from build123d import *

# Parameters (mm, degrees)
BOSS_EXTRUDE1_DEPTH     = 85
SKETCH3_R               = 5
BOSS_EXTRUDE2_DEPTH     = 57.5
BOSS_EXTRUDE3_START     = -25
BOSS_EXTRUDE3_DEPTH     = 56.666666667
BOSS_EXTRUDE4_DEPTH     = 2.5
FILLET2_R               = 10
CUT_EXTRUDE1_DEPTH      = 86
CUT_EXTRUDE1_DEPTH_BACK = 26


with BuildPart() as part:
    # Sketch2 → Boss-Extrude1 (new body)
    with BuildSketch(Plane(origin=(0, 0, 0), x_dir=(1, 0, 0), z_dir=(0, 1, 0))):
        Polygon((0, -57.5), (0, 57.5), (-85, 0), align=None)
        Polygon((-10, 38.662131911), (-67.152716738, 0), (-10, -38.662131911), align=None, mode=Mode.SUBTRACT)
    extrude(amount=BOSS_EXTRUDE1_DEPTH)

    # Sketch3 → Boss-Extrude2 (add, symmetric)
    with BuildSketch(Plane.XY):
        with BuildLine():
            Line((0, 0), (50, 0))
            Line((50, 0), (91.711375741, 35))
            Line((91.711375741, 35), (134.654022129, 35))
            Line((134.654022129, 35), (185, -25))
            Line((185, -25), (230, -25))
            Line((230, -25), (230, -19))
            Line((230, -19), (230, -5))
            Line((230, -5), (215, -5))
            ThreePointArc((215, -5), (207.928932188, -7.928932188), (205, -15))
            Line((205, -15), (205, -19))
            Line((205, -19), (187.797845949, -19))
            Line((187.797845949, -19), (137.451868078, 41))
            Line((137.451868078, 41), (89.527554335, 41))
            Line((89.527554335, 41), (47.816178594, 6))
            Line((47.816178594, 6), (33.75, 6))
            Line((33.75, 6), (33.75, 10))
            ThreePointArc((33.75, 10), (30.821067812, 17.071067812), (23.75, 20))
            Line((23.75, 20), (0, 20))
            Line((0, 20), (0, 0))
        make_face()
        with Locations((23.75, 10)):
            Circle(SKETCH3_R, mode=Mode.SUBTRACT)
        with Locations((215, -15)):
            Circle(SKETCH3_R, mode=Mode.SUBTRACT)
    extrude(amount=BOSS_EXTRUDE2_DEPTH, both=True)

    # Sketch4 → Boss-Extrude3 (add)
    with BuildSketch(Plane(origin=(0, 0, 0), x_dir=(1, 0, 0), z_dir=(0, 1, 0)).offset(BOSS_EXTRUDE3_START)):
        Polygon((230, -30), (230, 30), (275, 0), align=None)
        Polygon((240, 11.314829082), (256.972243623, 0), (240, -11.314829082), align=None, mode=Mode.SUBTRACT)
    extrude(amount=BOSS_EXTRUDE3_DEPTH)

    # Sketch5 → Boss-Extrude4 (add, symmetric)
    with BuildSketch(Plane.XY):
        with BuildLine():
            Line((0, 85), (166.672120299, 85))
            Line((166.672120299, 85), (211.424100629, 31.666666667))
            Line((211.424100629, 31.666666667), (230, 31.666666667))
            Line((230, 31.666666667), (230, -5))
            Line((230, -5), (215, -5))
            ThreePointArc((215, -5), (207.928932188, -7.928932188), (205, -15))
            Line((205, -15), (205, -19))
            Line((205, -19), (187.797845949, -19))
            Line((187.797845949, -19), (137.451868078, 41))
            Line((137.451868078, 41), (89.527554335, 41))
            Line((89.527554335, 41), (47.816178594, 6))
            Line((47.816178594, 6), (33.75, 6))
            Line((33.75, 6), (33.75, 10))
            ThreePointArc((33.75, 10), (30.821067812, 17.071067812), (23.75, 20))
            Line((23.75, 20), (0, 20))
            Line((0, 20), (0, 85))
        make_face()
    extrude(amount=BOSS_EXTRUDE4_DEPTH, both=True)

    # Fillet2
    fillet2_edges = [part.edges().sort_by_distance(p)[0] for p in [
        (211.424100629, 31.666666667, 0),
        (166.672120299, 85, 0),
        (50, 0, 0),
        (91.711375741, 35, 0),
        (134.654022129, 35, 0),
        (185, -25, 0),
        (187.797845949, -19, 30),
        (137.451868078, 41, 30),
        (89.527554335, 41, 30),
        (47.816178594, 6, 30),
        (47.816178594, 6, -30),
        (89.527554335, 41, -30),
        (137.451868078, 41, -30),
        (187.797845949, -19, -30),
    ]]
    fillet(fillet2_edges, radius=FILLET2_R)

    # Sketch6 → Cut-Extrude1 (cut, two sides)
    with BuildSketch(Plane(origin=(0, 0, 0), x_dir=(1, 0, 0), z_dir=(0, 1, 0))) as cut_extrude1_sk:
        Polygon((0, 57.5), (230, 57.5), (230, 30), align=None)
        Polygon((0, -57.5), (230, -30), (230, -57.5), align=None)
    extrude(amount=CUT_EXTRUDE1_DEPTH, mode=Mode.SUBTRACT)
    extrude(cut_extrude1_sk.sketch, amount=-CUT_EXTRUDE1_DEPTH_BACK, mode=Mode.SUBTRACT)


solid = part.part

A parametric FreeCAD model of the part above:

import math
import FreeCAD as App
import Part
import Sketcher
from FreeCAD import Vector
Q = App.Units.Quantity


def edges_at(feature, points):
    """Names of the edges that pass closest to the given points."""
    edges = feature.Shape.Edges
    near = lambda p: min(range(len(edges)), key=lambda i: edges[i].distToShape(Part.Vertex(*p))[0])
    return sorted({f"Edge{near(p) + 1}" for p in points})

doc = App.newDocument("Part")
body = doc.addObject("PartDesign::Body", "Body")

# Sketch on XZ plane
sketch1 = doc.addObject("Sketcher::SketchObject", "Sketch")
body.addObject(sketch1)
sketch1.AttachmentSupport = (doc.XZ_Plane, [""])
sketch1.MapMode = "FlatFace"
sketch1.addGeometry([
    Part.LineSegment(Vector(0, 58, 0), Vector(0, -58, 0)),  # 0
    Part.LineSegment(Vector(0, -58, 0), Vector(-85, 0, 0)),  # 1
    Part.LineSegment(Vector(-85, 0, 0), Vector(0, 58, 0)),  # 2
    Part.LineSegment(Vector(-67, 0, 0), Vector(-10, -39, 0)),  # 3
    Part.LineSegment(Vector(-10, -39, 0), Vector(-10, 39, 0)),  # 4
    Part.LineSegment(Vector(-10, 39, 0), Vector(-67, 0, 0)),  # 5
], False)
sketch1.addConstraint([
    Sketcher.Constraint("Coincident", 0, 2, 1, 1),
    Sketcher.Constraint("Coincident", 1, 2, 2, 1),
    Sketcher.Constraint("Coincident", 2, 2, 0, 1),
    Sketcher.Constraint("Coincident", 3, 2, 4, 1),
    Sketcher.Constraint("Coincident", 4, 2, 5, 1),
    Sketcher.Constraint("Coincident", 5, 2, 3, 1),
    Sketcher.Constraint("Vertical", 0),
    Sketcher.Constraint("Vertical", 4),
    Sketcher.Constraint("Symmetric", 0, 2, 2, 2, -1, 1),
    Sketcher.Constraint("PointOnObject", 1, 2, -1),
    Sketcher.Constraint("PointOnObject", 5, 2, -1),
    Sketcher.Constraint("Parallel", 1, 3),
    Sketcher.Constraint("Parallel", 2, 5),
    Sketcher.Constraint("DistanceY", 0, 2, 0, 1, Q("115 mm")),
    Sketcher.Constraint("DistanceX", 1, 2, -1, 1, Q("85 mm")),
    Sketcher.Constraint("DistanceX", 3, 2, -1, 1, Q("10 mm")),
    Sketcher.Constraint("Distance", 3, Q("69.001402 mm")),
])
pad1 = doc.addObject("PartDesign::Pad", "Pad")
body.addObject(pad1)
pad1.Profile = sketch1
pad1.Length = 85
pad1.Reversed = True

# Sketch on XY plane
sketch2 = doc.addObject("Sketcher::SketchObject", "Sketch001")
body.addObject(sketch2)
sketch2.AttachmentSupport = (doc.XY_Plane, [""])
sketch2.MapMode = "FlatFace"
sketch2.addGeometry([
    Part.LineSegment(Vector(0, 0, 0), Vector(50, 0, 0)),  # 0
    Part.LineSegment(Vector(50, 0, 0), Vector(91.7, 35, 0)),  # 1
    Part.LineSegment(Vector(91.7, 35, 0), Vector(134.7, 35, 0)),  # 2
    Part.LineSegment(Vector(134.7, 35, 0), Vector(185, -25, 0)),  # 3
    Part.LineSegment(Vector(185, -25, 0), Vector(230, -25, 0)),  # 4
    Part.LineSegment(Vector(230, -25, 0), Vector(230, -5, 0)),  # 5
    Part.LineSegment(Vector(230, -5, 0), Vector(215, -5, 0)),  # 6
    Part.ArcOfCircle(Part.Circle(Vector(215, -15, 0), Vector(0, 0, 1), 10), math.radians(90), math.radians(180)),  # 7
    Part.LineSegment(Vector(205, -15, 0), Vector(205, -19, 0)),  # 8
    Part.LineSegment(Vector(205, -19, 0), Vector(187.8, -19, 0)),  # 9
    Part.LineSegment(Vector(187.8, -19, 0), Vector(137.5, 41, 0)),  # 10
    Part.LineSegment(Vector(137.5, 41, 0), Vector(89.5, 41, 0)),  # 11
    Part.LineSegment(Vector(89.5, 41, 0), Vector(47.8, 6, 0)),  # 12
    Part.LineSegment(Vector(47.8, 6, 0), Vector(33.8, 6, 0)),  # 13
    Part.LineSegment(Vector(33.8, 6, 0), Vector(33.8, 10, 0)),  # 14
    Part.ArcOfCircle(Part.Circle(Vector(23.8, 10, 0), Vector(0, 0, 1), 10), math.radians(0), math.radians(90)),  # 15
    Part.LineSegment(Vector(23.8, 20, 0), Vector(0, 20, 0)),  # 16
    Part.LineSegment(Vector(0, 20, 0), Vector(0, 0, 0)),  # 17
    Part.Circle(Vector(215, -15, 0), Vector(0, 0, 1), 5),  # 18
    Part.Circle(Vector(23.8, 10, 0), Vector(0, 0, 1), 5),  # 19
], False)
sketch2.addConstraint([
    Sketcher.Constraint("Coincident", 0, 2, 1, 1),
    Sketcher.Constraint("Coincident", 1, 2, 2, 1),
    Sketcher.Constraint("Coincident", 2, 2, 3, 1),
    Sketcher.Constraint("Coincident", 3, 2, 4, 1),
    Sketcher.Constraint("Coincident", 4, 2, 5, 1),
    Sketcher.Constraint("Coincident", 5, 2, 6, 1),
    Sketcher.Constraint("Tangent", 6, 2, 7, 1),
    Sketcher.Constraint("Tangent", 7, 2, 8, 1),
    Sketcher.Constraint("Coincident", 8, 2, 9, 1),
    Sketcher.Constraint("Coincident", 9, 2, 10, 1),
    Sketcher.Constraint("Coincident", 10, 2, 11, 1),
    Sketcher.Constraint("Coincident", 11, 2, 12, 1),
    Sketcher.Constraint("Coincident", 12, 2, 13, 1),
    Sketcher.Constraint("Coincident", 13, 2, 14, 1),
    Sketcher.Constraint("Tangent", 14, 2, 15, 1),
    Sketcher.Constraint("Tangent", 15, 2, 16, 1),
    Sketcher.Constraint("Coincident", 16, 2, 17, 1),
    Sketcher.Constraint("Coincident", 17, 2, 0, 1),
    Sketcher.Constraint("Horizontal", 0),
    Sketcher.Constraint("Horizontal", 2),
    Sketcher.Constraint("Horizontal", 4),
    Sketcher.Constraint("Vertical", 5),
    Sketcher.Constraint("Horizontal", 6),
    Sketcher.Constraint("Vertical", 8),
    Sketcher.Constraint("Horizontal", 9),
    Sketcher.Constraint("Horizontal", 11),
    Sketcher.Constraint("Horizontal", 13),
    Sketcher.Constraint("Vertical", 14),
    Sketcher.Constraint("Horizontal", 16),
    Sketcher.Constraint("Vertical", 17),
    Sketcher.Constraint("Coincident", 17, 2, -1, 1),
    Sketcher.Constraint("Coincident", 18, 3, 7, 3),
    Sketcher.Constraint("Coincident", 19, 3, 15, 3),
    Sketcher.Constraint("Equal", 7, 15),
    Sketcher.Constraint("Equal", 18, 19),
    Sketcher.Constraint("Perpendicular", 1, 3),
    Sketcher.Constraint("Parallel", 3, 10),
    Sketcher.Constraint("Perpendicular", 10, 12),
    Sketcher.Constraint("Equal", 8, 14),
    Sketcher.Constraint("Equal", 5, 17),
    Sketcher.Constraint("Equal", 3, 10),
    Sketcher.Constraint("Diameter", 18, Q("10 mm")),
    Sketcher.Constraint("Radius", 7, Q("10 mm")),
    Sketcher.Constraint("DistanceX", 0, 1, 0, 2, Q("50 mm")),
    Sketcher.Constraint("DistanceX", 4, 1, 4, 2, Q("45 mm")),
    Sketcher.Constraint("DistanceX", 6, 2, 6, 1, Q("15 mm")),
    Sketcher.Constraint("DistanceY", 5, 1, 5, 2, Q("20 mm")),
    Sketcher.Constraint("DistanceY", 8, 2, 8, 1, Q("4 mm")),
    Sketcher.Constraint("Angle", 1, Q("40 deg")),
    Sketcher.Constraint("DistanceX", -1, 1, 7, 3, Q("215 mm")),
    Sketcher.Constraint("DistanceY", 7, 3, -1, 1, Q("15 mm")),
    Sketcher.Constraint("DistanceY", -1, 1, 1, 2, Q("35 mm")),
    Sketcher.Constraint("DistanceX", 16, 2, 16, 1, Q("23.75 mm")),
    Sketcher.Constraint("DistanceX", 13, 2, 13, 1, Q("14.066179 mm")),
    Sketcher.Constraint("DistanceX", 9, 2, 9, 1, Q("17.202154 mm")),
])
pad2 = doc.addObject("PartDesign::Pad", "Pad001")
body.addObject(pad2)
pad2.Profile = sketch2
pad2.Length = 115
pad2.Midplane = True

# Sketch on XZ plane
sketch3 = doc.addObject("Sketcher::SketchObject", "Sketch002")
body.addObject(sketch3)
sketch3.AttachmentSupport = (doc.XZ_Plane, [""])
sketch3.MapMode = "FlatFace"
sketch3.AttachmentOffset = App.Placement(Vector(0, 0, 25), App.Rotation())
sketch3.addGeometry([
    Part.LineSegment(Vector(230, -30, 0), Vector(230, 30, 0)),  # 0
    Part.LineSegment(Vector(230, 30, 0), Vector(275, 0, 0)),  # 1
    Part.LineSegment(Vector(275, 0, 0), Vector(230, -30, 0)),  # 2
    Part.LineSegment(Vector(240, -11, 0), Vector(257, 0, 0)),  # 3
    Part.LineSegment(Vector(257, 0, 0), Vector(240, 11, 0)),  # 4
    Part.LineSegment(Vector(240, 11, 0), Vector(240, -11, 0)),  # 5
], False)
sketch3.addConstraint([
    Sketcher.Constraint("Coincident", 0, 2, 1, 1),
    Sketcher.Constraint("Coincident", 1, 2, 2, 1),
    Sketcher.Constraint("Coincident", 2, 2, 0, 1),
    Sketcher.Constraint("Coincident", 3, 2, 4, 1),
    Sketcher.Constraint("Coincident", 4, 2, 5, 1),
    Sketcher.Constraint("Coincident", 5, 2, 3, 1),
    Sketcher.Constraint("Vertical", 0),
    Sketcher.Constraint("Vertical", 5),
    Sketcher.Constraint("PointOnObject", 1, 2, -1),
    Sketcher.Constraint("PointOnObject", 3, 2, -1),
    Sketcher.Constraint("Parallel", 2, 3),
    Sketcher.Constraint("Parallel", 1, 4),
    Sketcher.Constraint("Equal", 1, 2),
    Sketcher.Constraint("DistanceY", 0, 1, 0, 2, Q("60 mm")),
    Sketcher.Constraint("DistanceX", -1, 1, 0, 2, Q("230 mm")),
    Sketcher.Constraint("DistanceX", -1, 1, 1, 2, Q("275 mm")),
    Sketcher.Constraint("DistanceX", -1, 1, 4, 2, Q("240 mm")),
    Sketcher.Constraint("Distance", 3, Q("20.398098 mm")),
])
pad3 = doc.addObject("PartDesign::Pad", "Pad002")
body.addObject(pad3)
pad3.Profile = sketch3
pad3.Length = 56.666667
pad3.Reversed = True

# Sketch on XY plane
sketch4 = doc.addObject("Sketcher::SketchObject", "Sketch003")
body.addObject(sketch4)
sketch4.AttachmentSupport = (doc.XY_Plane, [""])
sketch4.MapMode = "FlatFace"
sketch4.addGeometry([
    Part.LineSegment(Vector(166.7, 85, 0), Vector(0, 85, 0)),  # 0
    Part.LineSegment(Vector(0, 85, 0), Vector(0, 20, 0)),  # 1
    Part.LineSegment(Vector(0, 20, 0), Vector(23.8, 20, 0)),  # 2
    Part.ArcOfCircle(Part.Circle(Vector(23.8, 10, 0), Vector(0, 0, 1), 10), math.radians(0), math.radians(90)),  # 3
    Part.LineSegment(Vector(33.8, 10, 0), Vector(33.8, 6, 0)),  # 4
    Part.LineSegment(Vector(33.8, 6, 0), Vector(47.8, 6, 0)),  # 5
    Part.LineSegment(Vector(47.8, 6, 0), Vector(89.5, 41, 0)),  # 6
    Part.LineSegment(Vector(89.5, 41, 0), Vector(137.5, 41, 0)),  # 7
    Part.LineSegment(Vector(137.5, 41, 0), Vector(187.8, -19, 0)),  # 8
    Part.LineSegment(Vector(187.8, -19, 0), Vector(205, -19, 0)),  # 9
    Part.LineSegment(Vector(205, -19, 0), Vector(205, -15, 0)),  # 10
    Part.ArcOfCircle(Part.Circle(Vector(215, -15, 0), Vector(0, 0, 1), 10), math.radians(90), math.radians(180)),  # 11
    Part.LineSegment(Vector(215, -5, 0), Vector(230, -5, 0)),  # 12
    Part.LineSegment(Vector(230, -5, 0), Vector(230, 31.7, 0)),  # 13
    Part.LineSegment(Vector(230, 31.7, 0), Vector(211.4, 31.7, 0)),  # 14
    Part.LineSegment(Vector(211.4, 31.7, 0), Vector(166.7, 85, 0)),  # 15
], False)
sketch4.addConstraint([
    Sketcher.Constraint("Coincident", 0, 2, 1, 1),
    Sketcher.Constraint("Coincident", 1, 2, 2, 1),
    Sketcher.Constraint("Tangent", 2, 2, 3, 2),
    Sketcher.Constraint("Tangent", 3, 1, 4, 1),
    Sketcher.Constraint("Coincident", 4, 2, 5, 1),
    Sketcher.Constraint("Coincident", 5, 2, 6, 1),
    Sketcher.Constraint("Coincident", 6, 2, 7, 1),
    Sketcher.Constraint("Coincident", 7, 2, 8, 1),
    Sketcher.Constraint("Coincident", 8, 2, 9, 1),
    Sketcher.Constraint("Coincident", 9, 2, 10, 1),
    Sketcher.Constraint("Tangent", 10, 2, 11, 2),
    Sketcher.Constraint("Tangent", 11, 1, 12, 1),
    Sketcher.Constraint("Coincident", 12, 2, 13, 1),
    Sketcher.Constraint("Coincident", 13, 2, 14, 1),
    Sketcher.Constraint("Coincident", 14, 2, 15, 1),
    Sketcher.Constraint("Coincident", 15, 2, 0, 1),
    Sketcher.Constraint("Horizontal", 0),
    Sketcher.Constraint("Vertical", 1),
    Sketcher.Constraint("Horizontal", 2),
    Sketcher.Constraint("Vertical", 4),
    Sketcher.Constraint("Horizontal", 5),
    Sketcher.Constraint("Horizontal", 7),
    Sketcher.Constraint("Horizontal", 9),
    Sketcher.Constraint("Vertical", 10),
    Sketcher.Constraint("Horizontal", 12),
    Sketcher.Constraint("Vertical", 13),
    Sketcher.Constraint("Horizontal", 14),
    Sketcher.Constraint("Equal", 3, 11),
    Sketcher.Constraint("PointOnObject", 0, 2, -2),
    Sketcher.Constraint("Perpendicular", 6, 8),
    Sketcher.Constraint("Parallel", 8, 15),
    Sketcher.Constraint("Equal", 4, 10),
    Sketcher.Constraint("Radius", 3, Q("10 mm")),
    Sketcher.Constraint("DistanceX", 12, 1, 12, 2, Q("15 mm")),
    Sketcher.Constraint("DistanceY", 1, 2, 1, 1, Q("65 mm")),
    Sketcher.Constraint("DistanceY", 4, 2, 4, 1, Q("4 mm")),
    Sketcher.Constraint("Angle", 6, Q("40 deg")),
    Sketcher.Constraint("DistanceY", -1, 1, 3, 3, Q("10 mm")),
    Sketcher.Constraint("DistanceX", -1, 1, 11, 3, Q("215 mm")),
    Sketcher.Constraint("DistanceY", 11, 3, -1, 1, Q("15 mm")),
    Sketcher.Constraint("DistanceY", -1, 1, 6, 2, Q("41 mm")),
    Sketcher.Constraint("DistanceX", 2, 1, 2, 2, Q("23.75 mm")),
    Sketcher.Constraint("DistanceX", 14, 2, 14, 1, Q("18.575899 mm")),
    Sketcher.Constraint("DistanceX", 0, 2, 0, 1, Q("166.67212 mm")),
    Sketcher.Constraint("DistanceX", 5, 1, 5, 2, Q("14.066179 mm")),
    Sketcher.Constraint("DistanceX", 7, 1, 7, 2, Q("47.924314 mm")),
])
pad4 = doc.addObject("PartDesign::Pad", "Pad003")
body.addObject(pad4)
pad4.Profile = sketch4
pad4.Length = 5
pad4.Midplane = True
doc.recompute()

fillet = doc.addObject("PartDesign::Fillet", "Fillet")
body.addObject(fillet)
fillet.Base = (pad4, edges_at(pad4, [
    (211.424, 31.667, 0),
    (166.672, 85, 0),
    (50, 0, 0),
    (91.711, 35, 0),
    (134.654, 35, 0),
    (185, -25, 0),
    (187.798, -19, 30),
    (137.452, 41, 30),
    (89.528, 41, 30),
    (47.816, 6, 30),
    (47.816, 6, -30),
    (89.528, 41, -30),
    (137.452, 41, -30),
    (187.798, -19, -30),
]))
fillet.Radius = 10

# Sketch on XZ plane
sketch5 = doc.addObject("Sketcher::SketchObject", "Sketch004")
body.addObject(sketch5)
sketch5.AttachmentSupport = (doc.XZ_Plane, [""])
sketch5.MapMode = "FlatFace"
sketch5.addGeometry([
    Part.LineSegment(Vector(230, -58, 0), Vector(0, -58, 0)),  # 0
    Part.LineSegment(Vector(0, -58, 0), Vector(230, -30, 0)),  # 1
    Part.LineSegment(Vector(230, -30, 0), Vector(230, -58, 0)),  # 2
    Part.LineSegment(Vector(230, 30, 0), Vector(0, 58, 0)),  # 3
    Part.LineSegment(Vector(0, 58, 0), Vector(230, 58, 0)),  # 4
    Part.LineSegment(Vector(230, 58, 0), Vector(230, 30, 0)),  # 5
], False)
sketch5.addConstraint([
    Sketcher.Constraint("Coincident", 0, 2, 1, 1),
    Sketcher.Constraint("Coincident", 1, 2, 2, 1),
    Sketcher.Constraint("Coincident", 2, 2, 0, 1),
    Sketcher.Constraint("Coincident", 3, 2, 4, 1),
    Sketcher.Constraint("Coincident", 4, 2, 5, 1),
    Sketcher.Constraint("Coincident", 5, 2, 3, 1),
    Sketcher.Constraint("Horizontal", 0),
    Sketcher.Constraint("Vertical", 2),
    Sketcher.Constraint("Horizontal", 4),
    Sketcher.Constraint("Vertical", 5),
    Sketcher.Constraint("Symmetric", 0, 2, 3, 2, -1, 1),
    Sketcher.Constraint("Symmetric", 1, 2, 5, 2, -1),
    Sketcher.Constraint("PointOnObject", 0, 2, -2),
    Sketcher.Constraint("DistanceX", 0, 2, 0, 1, Q("230 mm")),
    Sketcher.Constraint("DistanceY", 2, 2, 2, 1, Q("27.5 mm")),
    Sketcher.Constraint("DistanceY", 1, 2, -1, 1, Q("30 mm")),
])
pocket1 = doc.addObject("PartDesign::Pocket", "Pocket")
body.addObject(pocket1)
pocket1.Profile = sketch5
pocket1.Type = "ThroughAll"
pocket1.Midplane = True

doc.recompute()
